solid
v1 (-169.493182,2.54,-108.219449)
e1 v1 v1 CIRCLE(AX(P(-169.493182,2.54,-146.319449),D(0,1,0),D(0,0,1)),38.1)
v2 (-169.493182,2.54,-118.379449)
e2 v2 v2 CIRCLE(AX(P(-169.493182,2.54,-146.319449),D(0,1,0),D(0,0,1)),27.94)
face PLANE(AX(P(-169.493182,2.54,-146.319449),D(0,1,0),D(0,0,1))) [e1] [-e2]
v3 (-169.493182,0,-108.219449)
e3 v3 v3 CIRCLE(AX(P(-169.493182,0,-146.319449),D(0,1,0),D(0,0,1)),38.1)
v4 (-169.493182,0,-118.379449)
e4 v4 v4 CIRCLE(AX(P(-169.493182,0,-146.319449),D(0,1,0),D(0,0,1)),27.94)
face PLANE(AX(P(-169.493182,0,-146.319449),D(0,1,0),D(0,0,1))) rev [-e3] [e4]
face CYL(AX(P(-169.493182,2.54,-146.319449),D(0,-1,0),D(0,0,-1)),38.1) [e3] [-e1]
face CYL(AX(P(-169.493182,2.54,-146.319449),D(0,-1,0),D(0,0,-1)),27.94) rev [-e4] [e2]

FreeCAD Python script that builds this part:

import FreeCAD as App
import Part
import Sketcher
from FreeCAD import Vector
Q = App.Units.Quantity

doc = App.newDocument("Part")
params = doc.addObject("Spreadsheet::Sheet", "Params")
for row, (alias, value) in enumerate([
    ("sketch1_diameter", "3 in"),
    ("sketch1_diameter2", "2.2 in"),
    ("pad1_length", "0.1 in"),
], start=1):
    params.set(f"A{row}", alias)
    params.set(f"B{row}", "=" + value)
    params.setAlias(f"B{row}", alias)

body = doc.addObject("PartDesign::Body", "Body")

sketch1 = body.newObject("Sketcher::SketchObject", "Sketch")
sketch1.AttachmentSupport = (doc.getObject("XZ_Plane"), [""])
sketch1.MapMode = "FlatFace"
sketch1.addGeometry([
    Part.Circle(Vector(-169, -146, 0), Vector(0, 0, 1), 38),
    Part.Circle(Vector(-169, -146, 0), Vector(0, 0, 1), 28),
], False)
sketch1.addConstraint([
    Sketcher.Constraint("Coincident", 1, 3, 0, 3),
    Sketcher.Constraint("Diameter", 0, Q("3 in")),
    Sketcher.Constraint("Diameter", 1, Q("2.2 in")),
    Sketcher.Constraint("DistanceX", 0, 3, -1, 1, Q("169.493182 mm")),
    Sketcher.Constraint("DistanceY", 0, 3, -1, 1, Q("146.319449 mm")),
])
sketch1.setExpression("Constraints[1]", "Params.sketch1_diameter")
sketch1.setExpression("Constraints[2]", "Params.sketch1_diameter2")
pad1 = body.newObject("PartDesign::Pad", "Pad")
pad1.Profile = sketch1
pad1.setExpression("Length", "Params.pad1_length")
pad1.Reversed = True

doc.recompute()
